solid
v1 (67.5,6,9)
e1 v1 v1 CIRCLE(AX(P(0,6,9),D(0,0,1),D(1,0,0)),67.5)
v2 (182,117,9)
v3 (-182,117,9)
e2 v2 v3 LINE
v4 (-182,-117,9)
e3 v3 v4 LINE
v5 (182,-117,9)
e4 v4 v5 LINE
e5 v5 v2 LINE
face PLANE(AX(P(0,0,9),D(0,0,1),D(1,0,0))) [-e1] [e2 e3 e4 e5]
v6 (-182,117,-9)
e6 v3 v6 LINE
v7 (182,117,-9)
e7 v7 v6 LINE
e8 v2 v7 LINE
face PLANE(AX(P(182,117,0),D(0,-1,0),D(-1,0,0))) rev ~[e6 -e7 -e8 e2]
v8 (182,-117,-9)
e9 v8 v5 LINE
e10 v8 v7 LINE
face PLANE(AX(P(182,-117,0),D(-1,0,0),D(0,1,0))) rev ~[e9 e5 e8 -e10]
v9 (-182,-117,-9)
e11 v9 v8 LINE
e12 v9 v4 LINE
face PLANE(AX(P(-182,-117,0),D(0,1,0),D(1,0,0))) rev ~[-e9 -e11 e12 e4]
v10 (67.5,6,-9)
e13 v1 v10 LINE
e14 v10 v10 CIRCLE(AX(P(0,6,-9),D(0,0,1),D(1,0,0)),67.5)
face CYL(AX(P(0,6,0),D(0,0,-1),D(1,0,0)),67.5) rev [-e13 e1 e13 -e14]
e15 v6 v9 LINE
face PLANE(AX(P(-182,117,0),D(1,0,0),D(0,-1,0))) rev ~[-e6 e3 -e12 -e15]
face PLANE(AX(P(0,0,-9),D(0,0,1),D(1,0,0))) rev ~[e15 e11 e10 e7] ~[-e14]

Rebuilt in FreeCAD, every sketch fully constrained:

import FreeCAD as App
import Part
import Sketcher

V = App.Vector

doc = App.newDocument("Part")
body = doc.addObject("PartDesign::Body", "Body")

# Sketch on XY plane
sketch1 = body.newObject("Sketcher::SketchObject", "Sketch")
sketch1.AttachmentSupport = (doc.getObject("XY_Plane"), [""])
sketch1.MapMode = "FlatFace"
sketch1.addGeometry(Part.LineSegment(V(-182, 117, 0), V(-182, -117, 0)), False)
sketch1.addGeometry(Part.LineSegment(V(-182, -117, 0), V(182, -117, 0)), False)
sketch1.addGeometry(Part.LineSegment(V(182, -117, 0), V(182, 117, 0)), False)
sketch1.addGeometry(Part.LineSegment(V(182, 117, 0), V(-182, 117, 0)), False)
sketch1.addGeometry(Part.Circle(V(0, 6, 0), V(0, 0, 1), 67.5), False)
sketch1.addConstraint(Sketcher.Constraint("Coincident", 0, 2, 1, 1))
sketch1.addConstraint(Sketcher.Constraint("Coincident", 1, 2, 2, 1))
sketch1.addConstraint(Sketcher.Constraint("Coincident", 2, 2, 3, 1))
sketch1.addConstraint(Sketcher.Constraint("Coincident", 3, 2, 0, 1))
sketch1.addConstraint(Sketcher.Constraint("Vertical", 0))
sketch1.addConstraint(Sketcher.Constraint("Horizontal", 1))
sketch1.addConstraint(Sketcher.Constraint("Vertical", 2))
sketch1.addConstraint(Sketcher.Constraint("Horizontal", 3))
sketch1.addConstraint(Sketcher.Constraint("Symmetric", 0, 2, 2, 2, -1, 1))
sketch1.addConstraint(Sketcher.Constraint("PointOnObject", 4, 3, -2))
sketch1.addConstraint(Sketcher.Constraint("Diameter", 4, 135.0))
sketch1.addConstraint(Sketcher.Constraint("DistanceX", 1, 1, 1, 2, 364.0))
sketch1.addConstraint(Sketcher.Constraint("DistanceY", 0, 2, 0, 1, 234.0))
sketch1.addConstraint(Sketcher.Constraint("DistanceY", -1, 1, 4, 3, 6.0))
pad1 = body.newObject("PartDesign::Pad", "Pad")
pad1.Profile = sketch1
pad1.Length = 18
pad1.Midplane = True

doc.recompute()
